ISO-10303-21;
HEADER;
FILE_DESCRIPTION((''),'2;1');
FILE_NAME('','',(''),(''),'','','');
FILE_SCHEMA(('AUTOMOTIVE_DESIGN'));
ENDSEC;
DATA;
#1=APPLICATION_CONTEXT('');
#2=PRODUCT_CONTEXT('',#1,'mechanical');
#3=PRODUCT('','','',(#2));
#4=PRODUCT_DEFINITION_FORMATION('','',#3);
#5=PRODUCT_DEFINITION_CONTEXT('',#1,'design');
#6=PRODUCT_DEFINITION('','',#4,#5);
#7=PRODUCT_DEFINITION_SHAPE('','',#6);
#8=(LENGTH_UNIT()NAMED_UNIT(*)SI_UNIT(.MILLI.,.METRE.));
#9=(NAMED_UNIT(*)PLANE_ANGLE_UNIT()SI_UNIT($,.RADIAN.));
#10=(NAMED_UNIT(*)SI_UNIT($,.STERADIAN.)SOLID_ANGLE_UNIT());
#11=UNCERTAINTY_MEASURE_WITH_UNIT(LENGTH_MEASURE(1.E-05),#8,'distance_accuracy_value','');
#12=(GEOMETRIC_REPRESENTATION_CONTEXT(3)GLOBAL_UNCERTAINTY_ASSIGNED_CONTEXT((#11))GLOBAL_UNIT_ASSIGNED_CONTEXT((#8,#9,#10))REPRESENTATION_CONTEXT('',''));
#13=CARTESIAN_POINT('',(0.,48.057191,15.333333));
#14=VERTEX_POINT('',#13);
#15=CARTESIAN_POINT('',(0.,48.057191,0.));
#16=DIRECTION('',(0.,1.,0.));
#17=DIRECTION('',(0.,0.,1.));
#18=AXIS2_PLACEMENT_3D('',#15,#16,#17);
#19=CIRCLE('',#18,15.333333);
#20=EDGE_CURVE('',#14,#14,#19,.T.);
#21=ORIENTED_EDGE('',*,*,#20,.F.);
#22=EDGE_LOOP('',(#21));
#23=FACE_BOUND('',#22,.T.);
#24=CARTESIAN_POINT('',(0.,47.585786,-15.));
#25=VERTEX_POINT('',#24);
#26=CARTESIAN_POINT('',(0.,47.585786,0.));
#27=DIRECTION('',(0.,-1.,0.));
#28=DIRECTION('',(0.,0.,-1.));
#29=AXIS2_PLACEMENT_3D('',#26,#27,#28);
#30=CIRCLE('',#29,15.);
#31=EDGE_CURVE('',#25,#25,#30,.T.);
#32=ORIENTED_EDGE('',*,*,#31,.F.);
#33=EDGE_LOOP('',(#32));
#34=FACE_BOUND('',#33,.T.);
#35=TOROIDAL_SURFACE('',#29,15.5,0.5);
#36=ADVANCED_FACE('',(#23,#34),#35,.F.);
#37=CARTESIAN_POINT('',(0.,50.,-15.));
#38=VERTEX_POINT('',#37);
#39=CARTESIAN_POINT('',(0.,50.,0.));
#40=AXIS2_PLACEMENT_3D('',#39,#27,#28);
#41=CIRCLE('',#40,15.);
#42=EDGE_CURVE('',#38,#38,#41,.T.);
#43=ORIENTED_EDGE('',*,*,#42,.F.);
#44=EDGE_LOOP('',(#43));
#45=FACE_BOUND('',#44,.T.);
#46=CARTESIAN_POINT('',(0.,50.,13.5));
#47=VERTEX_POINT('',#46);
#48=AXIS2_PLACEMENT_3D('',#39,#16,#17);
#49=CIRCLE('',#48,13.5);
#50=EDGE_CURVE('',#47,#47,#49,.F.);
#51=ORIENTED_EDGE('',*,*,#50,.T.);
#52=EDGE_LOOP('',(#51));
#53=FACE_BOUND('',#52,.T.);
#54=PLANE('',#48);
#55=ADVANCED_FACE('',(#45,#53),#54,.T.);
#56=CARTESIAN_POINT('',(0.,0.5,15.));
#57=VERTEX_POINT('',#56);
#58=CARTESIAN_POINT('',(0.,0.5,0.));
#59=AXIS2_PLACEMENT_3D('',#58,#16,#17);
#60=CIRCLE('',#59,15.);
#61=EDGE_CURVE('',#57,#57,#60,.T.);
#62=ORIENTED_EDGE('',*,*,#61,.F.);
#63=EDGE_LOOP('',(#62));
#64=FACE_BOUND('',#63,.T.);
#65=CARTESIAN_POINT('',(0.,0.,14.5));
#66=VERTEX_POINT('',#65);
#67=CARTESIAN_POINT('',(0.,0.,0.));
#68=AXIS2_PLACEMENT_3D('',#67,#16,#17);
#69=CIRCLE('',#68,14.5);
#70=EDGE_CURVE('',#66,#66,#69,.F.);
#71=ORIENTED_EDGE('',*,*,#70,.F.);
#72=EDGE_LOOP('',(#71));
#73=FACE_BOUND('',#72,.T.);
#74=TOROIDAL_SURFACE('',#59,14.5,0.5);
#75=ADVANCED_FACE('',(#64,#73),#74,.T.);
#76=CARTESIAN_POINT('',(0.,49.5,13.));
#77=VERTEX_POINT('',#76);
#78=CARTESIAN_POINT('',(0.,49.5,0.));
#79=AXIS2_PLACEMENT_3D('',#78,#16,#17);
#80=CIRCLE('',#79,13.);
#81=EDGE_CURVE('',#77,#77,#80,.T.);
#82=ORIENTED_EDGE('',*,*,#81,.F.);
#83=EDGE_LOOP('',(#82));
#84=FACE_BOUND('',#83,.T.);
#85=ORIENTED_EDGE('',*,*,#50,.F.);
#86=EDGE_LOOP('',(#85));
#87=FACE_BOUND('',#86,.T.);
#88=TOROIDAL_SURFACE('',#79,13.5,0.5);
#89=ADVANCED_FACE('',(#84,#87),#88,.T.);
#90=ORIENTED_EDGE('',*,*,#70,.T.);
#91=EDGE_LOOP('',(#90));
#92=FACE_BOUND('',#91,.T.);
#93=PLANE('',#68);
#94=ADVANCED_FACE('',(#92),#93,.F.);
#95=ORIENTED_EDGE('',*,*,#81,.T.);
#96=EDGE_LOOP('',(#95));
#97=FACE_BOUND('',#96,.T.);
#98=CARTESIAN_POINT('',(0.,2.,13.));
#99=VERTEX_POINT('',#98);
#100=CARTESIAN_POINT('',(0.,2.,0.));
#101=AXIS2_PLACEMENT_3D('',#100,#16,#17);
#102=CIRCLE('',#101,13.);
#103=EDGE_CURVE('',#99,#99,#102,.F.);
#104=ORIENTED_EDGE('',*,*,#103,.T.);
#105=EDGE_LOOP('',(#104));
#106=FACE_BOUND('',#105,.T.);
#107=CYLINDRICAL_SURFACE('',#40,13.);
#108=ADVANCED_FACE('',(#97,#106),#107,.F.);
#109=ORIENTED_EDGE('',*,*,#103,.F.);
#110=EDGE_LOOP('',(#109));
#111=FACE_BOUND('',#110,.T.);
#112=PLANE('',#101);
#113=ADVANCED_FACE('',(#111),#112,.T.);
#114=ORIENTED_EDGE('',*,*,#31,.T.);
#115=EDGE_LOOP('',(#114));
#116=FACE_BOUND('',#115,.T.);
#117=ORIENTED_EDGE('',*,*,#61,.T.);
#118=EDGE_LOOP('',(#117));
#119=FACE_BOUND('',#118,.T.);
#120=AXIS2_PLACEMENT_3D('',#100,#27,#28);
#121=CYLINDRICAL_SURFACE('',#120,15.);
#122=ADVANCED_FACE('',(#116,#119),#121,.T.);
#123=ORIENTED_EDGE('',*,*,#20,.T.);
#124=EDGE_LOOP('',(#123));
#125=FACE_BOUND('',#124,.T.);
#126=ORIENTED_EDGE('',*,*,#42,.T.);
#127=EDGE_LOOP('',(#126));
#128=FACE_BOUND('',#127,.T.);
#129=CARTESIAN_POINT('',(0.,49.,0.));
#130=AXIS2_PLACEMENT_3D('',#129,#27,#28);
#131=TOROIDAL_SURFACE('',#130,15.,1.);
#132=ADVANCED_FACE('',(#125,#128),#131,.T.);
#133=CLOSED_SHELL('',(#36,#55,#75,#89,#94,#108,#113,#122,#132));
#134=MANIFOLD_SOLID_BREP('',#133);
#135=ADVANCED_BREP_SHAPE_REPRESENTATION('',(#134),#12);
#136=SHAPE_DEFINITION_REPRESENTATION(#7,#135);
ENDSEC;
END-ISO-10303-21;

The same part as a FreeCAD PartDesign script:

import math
import FreeCAD as App
import Part
import Sketcher
from FreeCAD import Vector


def edges_at(feature, points):
    """Names of the edges that pass closest to the given points."""
    edges = feature.Shape.Edges
    near = lambda p: min(range(len(edges)), key=lambda i: edges[i].distToShape(Part.Vertex(*p))[0])
    return sorted({f"Edge{near(p) + 1}" for p in points})

doc = App.newDocument("Part")
body = doc.addObject("PartDesign::Body", "Body")

# Sketch on XZ plane
sketch1 = body.newObject("Sketcher::SketchObject", "Sketch")
sketch1.AttachmentSupport = (doc.getObject("XZ_Plane"), [""])
sketch1.MapMode = "FlatFace"
sketch1.addGeometry(Part.Circle(Vector(0, 0, 0), Vector(0, 0, 1), 15), False)
sketch1.addConstraint([
    Sketcher.Constraint("Coincident", 0, 3, -1, 1),
    Sketcher.Constraint("Diameter", 0, 30.0),
])
pad1 = body.newObject("PartDesign::Pad", "Pad")
pad1.Profile = sketch1
pad1.Length = 2
pad1.Reversed = True

# Sketch on XZ plane
sketch2 = body.newObject("Sketcher::SketchObject", "Sketch001")
sketch2.AttachmentSupport = (doc.getObject("XZ_Plane"), [""])
sketch2.MapMode = "FlatFace"
sketch2.AttachmentOffset = App.Placement(Vector(0, 0, -2), App.Rotation())
sketch2.addGeometry([
    Part.Circle(Vector(0, 0, 0), Vector(0, 0, 1), 15),
    Part.Circle(Vector(0, 0, 0), Vector(0, 0, 1), 13),
], False)
sketch2.addConstraint([
    Sketcher.Constraint("Coincident", 0, 3, -1, 1),
    Sketcher.Constraint("Coincident", 1, 3, -1, 1),
    Sketcher.Constraint("Diameter", 0, 30.0),
    Sketcher.Constraint("Diameter", 1, 26.0),
])
pad2 = body.newObject("PartDesign::Pad", "Pad001")
pad2.Profile = sketch2
pad2.Length = 48
pad2.Reversed = True

# Sketch on XY plane
sketch3 = body.newObject("Sketcher::SketchObject", "Sketch002")
sketch3.AttachmentSupport = (doc.getObject("XY_Plane"), [""])
sketch3.MapMode = "FlatFace"
sketch3.addGeometry([
    Part.LineSegment(Vector(15, 50, 0), Vector(15, 48, 0)),
    Part.ArcOfCircle(Part.Circle(Vector(15, 49, 0), Vector(0, 0, 1), 1), math.radians(-90), math.radians(90)),
], False)
sketch3.addConstraint([
    Sketcher.Constraint("Coincident", 0, 1, 1, 2),
    Sketcher.Constraint("Coincident", 1, 1, 0, 2),
    Sketcher.Constraint("Vertical", 0),
    Sketcher.Constraint("Vertical", 1, 3, 0, 1),
    Sketcher.Constraint("Radius", 1, 1.0),
    Sketcher.Constraint("DistanceX", -1, 1, 1, 3, 15.0),
    Sketcher.Constraint("DistanceY", -1, 1, 1, 3, 49.0),
])
revolution = body.newObject("PartDesign::Revolution", "Revolution")
revolution.Profile = sketch3
revolution.ReferenceAxis = (sketch3, ["V_Axis"])
revolution.Angle = 360
doc.recompute()

fillet = body.newObject("PartDesign::Fillet", "Fillet")
fillet.Base = (revolution, edges_at(revolution, [(-15, 0, 0)]))
fillet.Radius = 0.5
doc.recompute()

fillet2 = body.newObject("PartDesign::Fillet", "Fillet001")
fillet2.Base = (fillet, edges_at(fillet, [(-13, 50, 0)]))
fillet2.Radius = 0.5
doc.recompute()

fillet3 = body.newObject("PartDesign::Fillet", "Fillet002")
fillet3.Base = (fillet2, edges_at(fillet2, [(-15, 48, 0)]))
fillet3.Radius = 0.5

doc.recompute()
